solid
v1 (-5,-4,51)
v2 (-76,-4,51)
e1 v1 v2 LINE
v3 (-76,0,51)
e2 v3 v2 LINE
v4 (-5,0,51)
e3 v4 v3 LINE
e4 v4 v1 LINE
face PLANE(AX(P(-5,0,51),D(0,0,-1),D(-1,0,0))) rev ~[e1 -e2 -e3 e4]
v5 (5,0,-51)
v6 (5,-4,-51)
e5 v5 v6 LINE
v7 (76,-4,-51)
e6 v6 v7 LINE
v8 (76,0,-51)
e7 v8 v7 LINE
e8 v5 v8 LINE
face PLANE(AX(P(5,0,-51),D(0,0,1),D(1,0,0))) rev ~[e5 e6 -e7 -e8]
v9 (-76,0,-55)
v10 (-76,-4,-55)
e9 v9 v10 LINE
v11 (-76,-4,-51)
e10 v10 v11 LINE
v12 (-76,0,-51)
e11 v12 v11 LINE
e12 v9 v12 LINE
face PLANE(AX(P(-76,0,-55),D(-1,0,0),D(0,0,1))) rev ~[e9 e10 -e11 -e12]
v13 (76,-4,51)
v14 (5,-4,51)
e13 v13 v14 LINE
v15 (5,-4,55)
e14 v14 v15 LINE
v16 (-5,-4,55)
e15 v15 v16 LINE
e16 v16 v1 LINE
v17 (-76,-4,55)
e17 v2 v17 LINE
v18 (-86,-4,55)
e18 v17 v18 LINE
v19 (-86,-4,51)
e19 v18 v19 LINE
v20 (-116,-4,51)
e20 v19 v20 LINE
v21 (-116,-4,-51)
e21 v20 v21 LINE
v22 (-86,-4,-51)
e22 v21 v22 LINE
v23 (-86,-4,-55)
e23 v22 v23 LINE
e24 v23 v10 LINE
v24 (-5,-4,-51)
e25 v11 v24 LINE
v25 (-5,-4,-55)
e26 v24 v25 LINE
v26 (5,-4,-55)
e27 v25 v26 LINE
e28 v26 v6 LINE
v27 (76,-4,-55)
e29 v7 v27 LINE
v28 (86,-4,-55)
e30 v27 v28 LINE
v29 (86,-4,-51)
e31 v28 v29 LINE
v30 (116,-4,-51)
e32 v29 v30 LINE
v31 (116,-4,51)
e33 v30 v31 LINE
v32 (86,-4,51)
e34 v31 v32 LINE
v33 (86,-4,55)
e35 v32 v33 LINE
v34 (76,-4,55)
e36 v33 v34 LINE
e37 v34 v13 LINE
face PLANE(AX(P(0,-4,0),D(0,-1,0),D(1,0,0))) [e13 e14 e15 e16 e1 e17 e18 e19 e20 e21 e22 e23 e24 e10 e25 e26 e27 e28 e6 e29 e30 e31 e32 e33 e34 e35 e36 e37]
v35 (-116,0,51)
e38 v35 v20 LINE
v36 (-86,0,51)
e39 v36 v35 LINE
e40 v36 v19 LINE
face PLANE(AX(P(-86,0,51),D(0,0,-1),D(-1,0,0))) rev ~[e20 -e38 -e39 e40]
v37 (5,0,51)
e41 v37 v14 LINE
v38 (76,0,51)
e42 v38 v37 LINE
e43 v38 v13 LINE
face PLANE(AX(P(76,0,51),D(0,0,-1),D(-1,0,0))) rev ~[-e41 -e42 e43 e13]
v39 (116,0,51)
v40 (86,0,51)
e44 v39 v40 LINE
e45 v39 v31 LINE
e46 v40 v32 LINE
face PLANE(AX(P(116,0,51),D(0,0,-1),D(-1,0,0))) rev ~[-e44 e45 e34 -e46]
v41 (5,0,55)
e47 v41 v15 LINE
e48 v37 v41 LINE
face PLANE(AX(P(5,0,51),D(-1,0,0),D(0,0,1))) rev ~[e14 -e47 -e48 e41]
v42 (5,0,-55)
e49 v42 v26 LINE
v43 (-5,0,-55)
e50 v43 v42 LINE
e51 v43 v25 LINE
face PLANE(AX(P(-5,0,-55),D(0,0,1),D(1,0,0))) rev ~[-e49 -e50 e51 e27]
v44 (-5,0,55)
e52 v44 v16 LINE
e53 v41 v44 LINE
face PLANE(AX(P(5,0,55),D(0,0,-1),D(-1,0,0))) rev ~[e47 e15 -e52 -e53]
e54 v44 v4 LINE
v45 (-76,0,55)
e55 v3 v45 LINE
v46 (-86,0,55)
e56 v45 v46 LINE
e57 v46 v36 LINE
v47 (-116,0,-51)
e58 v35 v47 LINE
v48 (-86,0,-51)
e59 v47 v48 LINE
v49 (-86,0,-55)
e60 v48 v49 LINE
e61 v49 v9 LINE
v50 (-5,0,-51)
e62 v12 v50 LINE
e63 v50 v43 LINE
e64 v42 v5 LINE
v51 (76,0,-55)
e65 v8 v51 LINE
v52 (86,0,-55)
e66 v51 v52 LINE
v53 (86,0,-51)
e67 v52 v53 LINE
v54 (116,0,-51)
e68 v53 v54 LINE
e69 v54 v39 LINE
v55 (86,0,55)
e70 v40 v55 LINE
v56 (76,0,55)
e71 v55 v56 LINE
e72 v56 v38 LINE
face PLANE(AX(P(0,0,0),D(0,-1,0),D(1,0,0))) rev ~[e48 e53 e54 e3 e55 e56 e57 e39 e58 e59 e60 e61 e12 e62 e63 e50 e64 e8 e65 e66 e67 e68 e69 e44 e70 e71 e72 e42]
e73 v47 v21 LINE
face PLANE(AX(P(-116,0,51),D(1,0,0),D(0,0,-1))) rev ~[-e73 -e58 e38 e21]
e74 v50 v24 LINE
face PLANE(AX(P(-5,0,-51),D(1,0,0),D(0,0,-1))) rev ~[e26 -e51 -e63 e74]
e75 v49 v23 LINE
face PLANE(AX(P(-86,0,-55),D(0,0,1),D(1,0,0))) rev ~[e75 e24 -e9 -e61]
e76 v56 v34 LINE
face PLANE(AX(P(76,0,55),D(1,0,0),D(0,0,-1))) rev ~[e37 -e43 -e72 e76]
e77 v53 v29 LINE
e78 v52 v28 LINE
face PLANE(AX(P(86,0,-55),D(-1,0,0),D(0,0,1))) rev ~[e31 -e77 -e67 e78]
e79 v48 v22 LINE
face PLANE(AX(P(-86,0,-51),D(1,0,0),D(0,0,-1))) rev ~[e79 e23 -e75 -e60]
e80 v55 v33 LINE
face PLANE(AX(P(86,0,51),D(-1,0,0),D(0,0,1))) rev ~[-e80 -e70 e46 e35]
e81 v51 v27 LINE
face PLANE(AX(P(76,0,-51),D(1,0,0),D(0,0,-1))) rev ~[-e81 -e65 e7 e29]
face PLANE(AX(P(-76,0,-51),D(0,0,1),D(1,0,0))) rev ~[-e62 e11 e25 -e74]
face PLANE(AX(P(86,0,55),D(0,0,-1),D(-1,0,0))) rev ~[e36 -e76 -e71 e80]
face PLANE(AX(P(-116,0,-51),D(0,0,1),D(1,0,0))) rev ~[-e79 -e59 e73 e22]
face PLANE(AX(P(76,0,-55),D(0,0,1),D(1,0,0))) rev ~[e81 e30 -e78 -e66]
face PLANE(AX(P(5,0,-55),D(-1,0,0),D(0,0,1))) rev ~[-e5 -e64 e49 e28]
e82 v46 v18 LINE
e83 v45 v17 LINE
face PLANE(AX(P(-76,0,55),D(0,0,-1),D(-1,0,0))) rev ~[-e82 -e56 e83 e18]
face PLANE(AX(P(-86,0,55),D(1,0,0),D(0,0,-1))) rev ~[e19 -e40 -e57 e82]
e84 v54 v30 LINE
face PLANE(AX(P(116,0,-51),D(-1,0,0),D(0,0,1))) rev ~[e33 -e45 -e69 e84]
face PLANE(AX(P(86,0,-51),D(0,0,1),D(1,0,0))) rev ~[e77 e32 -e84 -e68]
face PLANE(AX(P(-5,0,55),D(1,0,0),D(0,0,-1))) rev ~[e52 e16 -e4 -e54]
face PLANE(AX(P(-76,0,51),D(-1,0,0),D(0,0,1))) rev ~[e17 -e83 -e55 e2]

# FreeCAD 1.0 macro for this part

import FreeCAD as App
import Part
import Sketcher
Q = App.Units.Quantity

doc = App.newDocument("Part")
body = doc.addObject("PartDesign::Body", "Body")

# Sketch on XZ plane
sketch1 = body.newObject("Sketcher::SketchObject", "Sketch")
sketch1.AttachmentSupport = (doc.getObject("XZ_Plane"), [""])
sketch1.MapMode = "FlatFace"
sketch1.addGeometry([
    Part.LineSegment(App.Vector(-86, 51, 0), App.Vector(-116, 51, 0)),  # 0
    Part.LineSegment(App.Vector(-116, 51, 0), App.Vector(-116, -51, 0)),  # 1
    Part.LineSegment(App.Vector(-116, -51, 0), App.Vector(-86, -51, 0)),  # 2
    Part.LineSegment(App.Vector(-86, -51, 0), App.Vector(-86, -55, 0)),  # 3
    Part.LineSegment(App.Vector(-86, -55, 0), App.Vector(-76, -55, 0)),  # 4
    Part.LineSegment(App.Vector(-76, -55, 0), App.Vector(-76, -51, 0)),  # 5
    Part.LineSegment(App.Vector(-76, -51, 0), App.Vector(-5, -51, 0)),  # 6
    Part.LineSegment(App.Vector(-5, -51, 0), App.Vector(-5, -55, 0)),  # 7
    Part.LineSegment(App.Vector(-5, -55, 0), App.Vector(5, -55, 0)),  # 8
    Part.LineSegment(App.Vector(5, -55, 0), App.Vector(5, -51, 0)),  # 9
    Part.LineSegment(App.Vector(5, -51, 0), App.Vector(76, -51, 0)),  # 10
    Part.LineSegment(App.Vector(76, -51, 0), App.Vector(76, -55, 0)),  # 11
    Part.LineSegment(App.Vector(76, -55, 0), App.Vector(86, -55, 0)),  # 12
    Part.LineSegment(App.Vector(86, -55, 0), App.Vector(86, -51, 0)),  # 13
    Part.LineSegment(App.Vector(86, -51, 0), App.Vector(116, -51, 0)),  # 14
    Part.LineSegment(App.Vector(116, -51, 0), App.Vector(116, 51, 0)),  # 15
    Part.LineSegment(App.Vector(116, 51, 0), App.Vector(86, 51, 0)),  # 16
    Part.LineSegment(App.Vector(86, 51, 0), App.Vector(86, 55, 0)),  # 17
    Part.LineSegment(App.Vector(86, 55, 0), App.Vector(76, 55, 0)),  # 18
    Part.LineSegment(App.Vector(76, 55, 0), App.Vector(76, 51, 0)),  # 19
    Part.LineSegment(App.Vector(76, 51, 0), App.Vector(5, 51, 0)),  # 20
    Part.LineSegment(App.Vector(5, 51, 0), App.Vector(5, 55, 0)),  # 21
    Part.LineSegment(App.Vector(5, 55, 0), App.Vector(-5, 55, 0)),  # 22
    Part.LineSegment(App.Vector(-5, 55, 0), App.Vector(-5, 51, 0)),  # 23
    Part.LineSegment(App.Vector(-5, 51, 0), App.Vector(-76, 51, 0)),  # 24
    Part.LineSegment(App.Vector(-76, 51, 0), App.Vector(-76, 55, 0)),  # 25
    Part.LineSegment(App.Vector(-76, 55, 0), App.Vector(-86, 55, 0)),  # 26
    Part.LineSegment(App.Vector(-86, 55, 0), App.Vector(-86, 51, 0)),  # 27
], False)
sketch1.addConstraint([
    Sketcher.Constraint("Coincident", 0, 2, 1, 1),
    Sketcher.Constraint("Coincident", 1, 2, 2, 1),
    Sketcher.Constraint("Coincident", 2, 2, 3, 1),
    Sketcher.Constraint("Coincident", 3, 2, 4, 1),
    Sketcher.Constraint("Coincident", 4, 2, 5, 1),
    Sketcher.Constraint("Coincident", 5, 2, 6, 1),
    Sketcher.Constraint("Coincident", 6, 2, 7, 1),
    Sketcher.Constraint("Coincident", 7, 2, 8, 1),
    Sketcher.Constraint("Coincident", 8, 2, 9, 1),
    Sketcher.Constraint("Coincident", 9, 2, 10, 1),
    Sketcher.Constraint("Coincident", 10, 2, 11, 1),
    Sketcher.Constraint("Coincident", 11, 2, 12, 1),
    Sketcher.Constraint("Coincident", 12, 2, 13, 1),
    Sketcher.Constraint("Coincident", 13, 2, 14, 1),
    Sketcher.Constraint("Coincident", 14, 2, 15, 1),
    Sketcher.Constraint("Coincident", 15, 2, 16, 1),
    Sketcher.Constraint("Coincident", 16, 2, 17, 1),
    Sketcher.Constraint("Coincident", 17, 2, 18, 1),
    Sketcher.Constraint("Coincident", 18, 2, 19, 1),
    Sketcher.Constraint("Coincident", 19, 2, 20, 1),
    Sketcher.Constraint("Coincident", 20, 2, 21, 1),
    Sketcher.Constraint("Coincident", 21, 2, 22, 1),
    Sketcher.Constraint("Coincident", 22, 2, 23, 1),
    Sketcher.Constraint("Coincident", 23, 2, 24, 1),
    Sketcher.Constraint("Coincident", 24, 2, 25, 1),
    Sketcher.Constraint("Coincident", 25, 2, 26, 1),
    Sketcher.Constraint("Coincident", 26, 2, 27, 1),
    Sketcher.Constraint("Coincident", 27, 2, 0, 1),
    Sketcher.Constraint("Horizontal", 0),
    Sketcher.Constraint("Vertical", 1),
    Sketcher.Constraint("Horizontal", 2),
    Sketcher.Constraint("Vertical", 3),
    Sketcher.Constraint("Horizontal", 4),
    Sketcher.Constraint("Vertical", 5),
    Sketcher.Constraint("Horizontal", 6),
    Sketcher.Constraint("Vertical", 7),
    Sketcher.Constraint("Horizontal", 8),
    Sketcher.Constraint("Vertical", 9),
    Sketcher.Constraint("Horizontal", 10),
    Sketcher.Constraint("Vertical", 11),
    Sketcher.Constraint("Horizontal", 12),
    Sketcher.Constraint("Vertical", 13),
    Sketcher.Constraint("Horizontal", 14),
    Sketcher.Constraint("Vertical", 15),
    Sketcher.Constraint("Horizontal", 16),
    Sketcher.Constraint("Vertical", 17),
    Sketcher.Constraint("Horizontal", 18),
    Sketcher.Constraint("Vertical", 19),
    Sketcher.Constraint("Horizontal", 20),
    Sketcher.Constraint("Vertical", 21),
    Sketcher.Constraint("Horizontal", 22),
    Sketcher.Constraint("Vertical", 23),
    Sketcher.Constraint("Horizontal", 24),
    Sketcher.Constraint("Vertical", 25),
    Sketcher.Constraint("Horizontal", 26),
    Sketcher.Constraint("Vertical", 27),
    Sketcher.Constraint("Symmetric", 0, 2, 14, 2, -1, 1),
    Sketcher.Constraint("Symmetric", 2, 2, 16, 2, -1, 1),
    Sketcher.Constraint("Symmetric", 4, 2, 18, 2, -1, 1),
    Sketcher.Constraint("Symmetric", 6, 2, 20, 2, -1, 1),
    Sketcher.Constraint("Symmetric", 8, 2, 22, 2, -1, 1),
    Sketcher.Constraint("Symmetric", 10, 2, 24, 2, -1, 1),
    Sketcher.Constraint("Symmetric", 12, 2, 26, 2, -1, 1),
    Sketcher.Constraint("Symmetric", 6, 2, 9, 2, -2),
    Sketcher.Constraint("Symmetric", 4, 2, 11, 2, -2),
    Sketcher.Constraint("Symmetric", 2, 2, 13, 2, -2),
    Sketcher.Constraint("Horizontal", 2, 2, 5, 2),
    Sketcher.Constraint("Horizontal", 4, 2, 7, 2),
    Sketcher.Constraint("Equal", 4, 8),
    Sketcher.Constraint("DistanceX", 0, 2, 0, 1, Q("30 mm")),
    Sketcher.Constraint("DistanceX", 4, 1, 4, 2, Q("10 mm")),
    Sketcher.Constraint("DistanceX", 6, 1, 6, 2, Q("71 mm")),
    Sketcher.Constraint("DistanceY", 1, 2, 1, 1, Q("102 mm")),
    Sketcher.Constraint("DistanceY", 3, 2, 3, 1, Q("4 mm")),
])
pad1 = body.newObject("PartDesign::Pad", "Pad")
pad1.Profile = sketch1
pad1.Length = 4

doc.recompute()
